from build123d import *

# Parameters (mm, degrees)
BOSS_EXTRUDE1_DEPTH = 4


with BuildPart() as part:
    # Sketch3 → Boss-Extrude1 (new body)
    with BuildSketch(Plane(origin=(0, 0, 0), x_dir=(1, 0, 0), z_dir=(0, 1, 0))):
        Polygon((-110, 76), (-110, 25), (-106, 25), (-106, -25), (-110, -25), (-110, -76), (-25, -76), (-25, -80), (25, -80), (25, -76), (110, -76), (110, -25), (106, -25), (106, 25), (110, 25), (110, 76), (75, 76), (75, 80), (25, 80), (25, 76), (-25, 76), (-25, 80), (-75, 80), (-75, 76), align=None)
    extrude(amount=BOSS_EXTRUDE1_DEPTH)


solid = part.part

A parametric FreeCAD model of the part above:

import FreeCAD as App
import Part
import Sketcher

V = App.Vector

doc = App.newDocument("Part")
body = doc.addObject("PartDesign::Body", "Body")

sketch1 = doc.addObject("Sketcher::SketchObject", "Sketch")
body.addObject(sketch1)
sketch1.AttachmentSupport = (doc.XZ_Plane, [""])
sketch1.MapMode = "FlatFace"
sketch1.addGeometry([
    Part.LineSegment(V(-110, -76, 0), V(-110, -25, 0)),
    Part.LineSegment(V(-110, -25, 0), V(-106, -25, 0)),
    Part.LineSegment(V(-106, -25, 0), V(-106, 25, 0)),
    Part.LineSegment(V(-106, 25, 0), V(-110, 25, 0)),
    Part.LineSegment(V(-110, 25, 0), V(-110, 76, 0)),
    Part.LineSegment(V(-110, 76, 0), V(-25, 76, 0)),
    Part.LineSegment(V(-25, 76, 0), V(-25, 80, 0)),
    Part.LineSegment(V(-25, 80, 0), V(25, 80, 0)),
    Part.LineSegment(V(25, 80, 0), V(25, 76, 0)),
    Part.LineSegment(V(25, 76, 0), V(110, 76, 0)),
    Part.LineSegment(V(110, 76, 0), V(110, 25, 0)),
    Part.LineSegment(V(110, 25, 0), V(106, 25, 0)),
    Part.LineSegment(V(106, 25, 0), V(106, -25, 0)),
    Part.LineSegment(V(106, -25, 0), V(110, -25, 0)),
    Part.LineSegment(V(110, -25, 0), V(110, -76, 0)),
    Part.LineSegment(V(110, -76, 0), V(75, -76, 0)),
    Part.LineSegment(V(75, -76, 0), V(75, -80, 0)),
    Part.LineSegment(V(75, -80, 0), V(25, -80, 0)),
    Part.LineSegment(V(25, -80, 0), V(25, -76, 0)),
    Part.LineSegment(V(25, -76, 0), V(-25, -76, 0)),
    Part.LineSegment(V(-25, -76, 0), V(-25, -80, 0)),
    Part.LineSegment(V(-25, -80, 0), V(-75, -80, 0)),
    Part.LineSegment(V(-75, -80, 0), V(-75, -76, 0)),
    Part.LineSegment(V(-75, -76, 0), V(-110, -76, 0)),
], False)
sketch1.addConstraint([
    Sketcher.Constraint("Coincident", 0, 2, 1, 1),
    Sketcher.Constraint("Coincident", 1, 2, 2, 1),
    Sketcher.Constraint("Coincident", 2, 2, 3, 1),
    Sketcher.Constraint("Coincident", 3, 2, 4, 1),
    Sketcher.Constraint("Coincident", 4, 2, 5, 1),
    Sketcher.Constraint("Coincident", 5, 2, 6, 1),
    Sketcher.Constraint("Coincident", 6, 2, 7, 1),
    Sketcher.Constraint("Coincident", 7, 2, 8, 1),
    Sketcher.Constraint("Coincident", 8, 2, 9, 1),
    Sketcher.Constraint("Coincident", 9, 2, 10, 1),
    Sketcher.Constraint("Coincident", 10, 2, 11, 1),
    Sketcher.Constraint("Coincident", 11, 2, 12, 1),
    Sketcher.Constraint("Coincident", 12, 2, 13, 1),
    Sketcher.Constraint("Coincident", 13, 2, 14, 1),
    Sketcher.Constraint("Coincident", 14, 2, 15, 1),
    Sketcher.Constraint("Coincident", 15, 2, 16, 1),
    Sketcher.Constraint("Coincident", 16, 2, 17, 1),
    Sketcher.Constraint("Coincident", 17, 2, 18, 1),
    Sketcher.Constraint("Coincident", 18, 2, 19, 1),
    Sketcher.Constraint("Coincident", 19, 2, 20, 1),
    Sketcher.Constraint("Coincident", 20, 2, 21, 1),
    Sketcher.Constraint("Coincident", 21, 2, 22, 1),
    Sketcher.Constraint("Coincident", 22, 2, 23, 1),
    Sketcher.Constraint("Coincident", 23, 2, 0, 1),
    Sketcher.Constraint("Vertical", 0),
    Sketcher.Constraint("Horizontal", 1),
    Sketcher.Constraint("Vertical", 2),
    Sketcher.Constraint("Horizontal", 3),
    Sketcher.Constraint("Vertical", 4),
    Sketcher.Constraint("Horizontal", 5),
    Sketcher.Constraint("Vertical", 6),
    Sketcher.Constraint("Horizontal", 7),
    Sketcher.Constraint("Vertical", 8),
    Sketcher.Constraint("Horizontal", 9),
    Sketcher.Constraint("Vertical", 10),
    Sketcher.Constraint("Horizontal", 11),
    Sketcher.Constraint("Vertical", 12),
    Sketcher.Constraint("Horizontal", 13),
    Sketcher.Constraint("Vertical", 14),
    Sketcher.Constraint("Horizontal", 15),
    Sketcher.Constraint("Vertical", 16),
    Sketcher.Constraint("Horizontal", 17),
    Sketcher.Constraint("Vertical", 18),
    Sketcher.Constraint("Horizontal", 19),
    Sketcher.Constraint("Vertical", 20),
    Sketcher.Constraint("Horizontal", 21),
    Sketcher.Constraint("Vertical", 22),
    Sketcher.Constraint("Horizontal", 23),
    Sketcher.Constraint("Symmetric", 0, 2, 10, 2, -1, 1),
    Sketcher.Constraint("Symmetric", 2, 2, 12, 2, -1, 1),
    Sketcher.Constraint("Symmetric", 4, 2, 14, 2, -1, 1),
    Sketcher.Constraint("Symmetric", 6, 2, 17, 2, -1, 1),
    Sketcher.Constraint("Symmetric", 8, 2, 19, 2, -1, 1),
    Sketcher.Constraint("Symmetric", 5, 2, 8, 2, -2),
    Sketcher.Constraint("Symmetric", 3, 2, 10, 2, -2),
    Sketcher.Constraint("Symmetric", 16, 2, 21, 2, -2),
    Sketcher.Constraint("Horizontal", 19, 2, 22, 2),
    Sketcher.Constraint("Equal", 7, 17),
    Sketcher.Constraint("Equal", 21, 2),
    Sketcher.Constraint("Equal", 13, 6),
    Sketcher.Constraint("DistanceX", 1, 1, 1, 2, 4.0),
    Sketcher.Constraint("DistanceX", 5, 1, 5, 2, 85.0),
    Sketcher.Constraint("DistanceX", 7, 1, 7, 2, 50.0),
    Sketcher.Constraint("DistanceY", 0, 1, 0, 2, 51.0),
])
pad1 = doc.addObject("PartDesign::Pad", "Pad")
body.addObject(pad1)
pad1.Profile = sketch1
pad1.Length = 4
pad1.Reversed = True

doc.recompute()
